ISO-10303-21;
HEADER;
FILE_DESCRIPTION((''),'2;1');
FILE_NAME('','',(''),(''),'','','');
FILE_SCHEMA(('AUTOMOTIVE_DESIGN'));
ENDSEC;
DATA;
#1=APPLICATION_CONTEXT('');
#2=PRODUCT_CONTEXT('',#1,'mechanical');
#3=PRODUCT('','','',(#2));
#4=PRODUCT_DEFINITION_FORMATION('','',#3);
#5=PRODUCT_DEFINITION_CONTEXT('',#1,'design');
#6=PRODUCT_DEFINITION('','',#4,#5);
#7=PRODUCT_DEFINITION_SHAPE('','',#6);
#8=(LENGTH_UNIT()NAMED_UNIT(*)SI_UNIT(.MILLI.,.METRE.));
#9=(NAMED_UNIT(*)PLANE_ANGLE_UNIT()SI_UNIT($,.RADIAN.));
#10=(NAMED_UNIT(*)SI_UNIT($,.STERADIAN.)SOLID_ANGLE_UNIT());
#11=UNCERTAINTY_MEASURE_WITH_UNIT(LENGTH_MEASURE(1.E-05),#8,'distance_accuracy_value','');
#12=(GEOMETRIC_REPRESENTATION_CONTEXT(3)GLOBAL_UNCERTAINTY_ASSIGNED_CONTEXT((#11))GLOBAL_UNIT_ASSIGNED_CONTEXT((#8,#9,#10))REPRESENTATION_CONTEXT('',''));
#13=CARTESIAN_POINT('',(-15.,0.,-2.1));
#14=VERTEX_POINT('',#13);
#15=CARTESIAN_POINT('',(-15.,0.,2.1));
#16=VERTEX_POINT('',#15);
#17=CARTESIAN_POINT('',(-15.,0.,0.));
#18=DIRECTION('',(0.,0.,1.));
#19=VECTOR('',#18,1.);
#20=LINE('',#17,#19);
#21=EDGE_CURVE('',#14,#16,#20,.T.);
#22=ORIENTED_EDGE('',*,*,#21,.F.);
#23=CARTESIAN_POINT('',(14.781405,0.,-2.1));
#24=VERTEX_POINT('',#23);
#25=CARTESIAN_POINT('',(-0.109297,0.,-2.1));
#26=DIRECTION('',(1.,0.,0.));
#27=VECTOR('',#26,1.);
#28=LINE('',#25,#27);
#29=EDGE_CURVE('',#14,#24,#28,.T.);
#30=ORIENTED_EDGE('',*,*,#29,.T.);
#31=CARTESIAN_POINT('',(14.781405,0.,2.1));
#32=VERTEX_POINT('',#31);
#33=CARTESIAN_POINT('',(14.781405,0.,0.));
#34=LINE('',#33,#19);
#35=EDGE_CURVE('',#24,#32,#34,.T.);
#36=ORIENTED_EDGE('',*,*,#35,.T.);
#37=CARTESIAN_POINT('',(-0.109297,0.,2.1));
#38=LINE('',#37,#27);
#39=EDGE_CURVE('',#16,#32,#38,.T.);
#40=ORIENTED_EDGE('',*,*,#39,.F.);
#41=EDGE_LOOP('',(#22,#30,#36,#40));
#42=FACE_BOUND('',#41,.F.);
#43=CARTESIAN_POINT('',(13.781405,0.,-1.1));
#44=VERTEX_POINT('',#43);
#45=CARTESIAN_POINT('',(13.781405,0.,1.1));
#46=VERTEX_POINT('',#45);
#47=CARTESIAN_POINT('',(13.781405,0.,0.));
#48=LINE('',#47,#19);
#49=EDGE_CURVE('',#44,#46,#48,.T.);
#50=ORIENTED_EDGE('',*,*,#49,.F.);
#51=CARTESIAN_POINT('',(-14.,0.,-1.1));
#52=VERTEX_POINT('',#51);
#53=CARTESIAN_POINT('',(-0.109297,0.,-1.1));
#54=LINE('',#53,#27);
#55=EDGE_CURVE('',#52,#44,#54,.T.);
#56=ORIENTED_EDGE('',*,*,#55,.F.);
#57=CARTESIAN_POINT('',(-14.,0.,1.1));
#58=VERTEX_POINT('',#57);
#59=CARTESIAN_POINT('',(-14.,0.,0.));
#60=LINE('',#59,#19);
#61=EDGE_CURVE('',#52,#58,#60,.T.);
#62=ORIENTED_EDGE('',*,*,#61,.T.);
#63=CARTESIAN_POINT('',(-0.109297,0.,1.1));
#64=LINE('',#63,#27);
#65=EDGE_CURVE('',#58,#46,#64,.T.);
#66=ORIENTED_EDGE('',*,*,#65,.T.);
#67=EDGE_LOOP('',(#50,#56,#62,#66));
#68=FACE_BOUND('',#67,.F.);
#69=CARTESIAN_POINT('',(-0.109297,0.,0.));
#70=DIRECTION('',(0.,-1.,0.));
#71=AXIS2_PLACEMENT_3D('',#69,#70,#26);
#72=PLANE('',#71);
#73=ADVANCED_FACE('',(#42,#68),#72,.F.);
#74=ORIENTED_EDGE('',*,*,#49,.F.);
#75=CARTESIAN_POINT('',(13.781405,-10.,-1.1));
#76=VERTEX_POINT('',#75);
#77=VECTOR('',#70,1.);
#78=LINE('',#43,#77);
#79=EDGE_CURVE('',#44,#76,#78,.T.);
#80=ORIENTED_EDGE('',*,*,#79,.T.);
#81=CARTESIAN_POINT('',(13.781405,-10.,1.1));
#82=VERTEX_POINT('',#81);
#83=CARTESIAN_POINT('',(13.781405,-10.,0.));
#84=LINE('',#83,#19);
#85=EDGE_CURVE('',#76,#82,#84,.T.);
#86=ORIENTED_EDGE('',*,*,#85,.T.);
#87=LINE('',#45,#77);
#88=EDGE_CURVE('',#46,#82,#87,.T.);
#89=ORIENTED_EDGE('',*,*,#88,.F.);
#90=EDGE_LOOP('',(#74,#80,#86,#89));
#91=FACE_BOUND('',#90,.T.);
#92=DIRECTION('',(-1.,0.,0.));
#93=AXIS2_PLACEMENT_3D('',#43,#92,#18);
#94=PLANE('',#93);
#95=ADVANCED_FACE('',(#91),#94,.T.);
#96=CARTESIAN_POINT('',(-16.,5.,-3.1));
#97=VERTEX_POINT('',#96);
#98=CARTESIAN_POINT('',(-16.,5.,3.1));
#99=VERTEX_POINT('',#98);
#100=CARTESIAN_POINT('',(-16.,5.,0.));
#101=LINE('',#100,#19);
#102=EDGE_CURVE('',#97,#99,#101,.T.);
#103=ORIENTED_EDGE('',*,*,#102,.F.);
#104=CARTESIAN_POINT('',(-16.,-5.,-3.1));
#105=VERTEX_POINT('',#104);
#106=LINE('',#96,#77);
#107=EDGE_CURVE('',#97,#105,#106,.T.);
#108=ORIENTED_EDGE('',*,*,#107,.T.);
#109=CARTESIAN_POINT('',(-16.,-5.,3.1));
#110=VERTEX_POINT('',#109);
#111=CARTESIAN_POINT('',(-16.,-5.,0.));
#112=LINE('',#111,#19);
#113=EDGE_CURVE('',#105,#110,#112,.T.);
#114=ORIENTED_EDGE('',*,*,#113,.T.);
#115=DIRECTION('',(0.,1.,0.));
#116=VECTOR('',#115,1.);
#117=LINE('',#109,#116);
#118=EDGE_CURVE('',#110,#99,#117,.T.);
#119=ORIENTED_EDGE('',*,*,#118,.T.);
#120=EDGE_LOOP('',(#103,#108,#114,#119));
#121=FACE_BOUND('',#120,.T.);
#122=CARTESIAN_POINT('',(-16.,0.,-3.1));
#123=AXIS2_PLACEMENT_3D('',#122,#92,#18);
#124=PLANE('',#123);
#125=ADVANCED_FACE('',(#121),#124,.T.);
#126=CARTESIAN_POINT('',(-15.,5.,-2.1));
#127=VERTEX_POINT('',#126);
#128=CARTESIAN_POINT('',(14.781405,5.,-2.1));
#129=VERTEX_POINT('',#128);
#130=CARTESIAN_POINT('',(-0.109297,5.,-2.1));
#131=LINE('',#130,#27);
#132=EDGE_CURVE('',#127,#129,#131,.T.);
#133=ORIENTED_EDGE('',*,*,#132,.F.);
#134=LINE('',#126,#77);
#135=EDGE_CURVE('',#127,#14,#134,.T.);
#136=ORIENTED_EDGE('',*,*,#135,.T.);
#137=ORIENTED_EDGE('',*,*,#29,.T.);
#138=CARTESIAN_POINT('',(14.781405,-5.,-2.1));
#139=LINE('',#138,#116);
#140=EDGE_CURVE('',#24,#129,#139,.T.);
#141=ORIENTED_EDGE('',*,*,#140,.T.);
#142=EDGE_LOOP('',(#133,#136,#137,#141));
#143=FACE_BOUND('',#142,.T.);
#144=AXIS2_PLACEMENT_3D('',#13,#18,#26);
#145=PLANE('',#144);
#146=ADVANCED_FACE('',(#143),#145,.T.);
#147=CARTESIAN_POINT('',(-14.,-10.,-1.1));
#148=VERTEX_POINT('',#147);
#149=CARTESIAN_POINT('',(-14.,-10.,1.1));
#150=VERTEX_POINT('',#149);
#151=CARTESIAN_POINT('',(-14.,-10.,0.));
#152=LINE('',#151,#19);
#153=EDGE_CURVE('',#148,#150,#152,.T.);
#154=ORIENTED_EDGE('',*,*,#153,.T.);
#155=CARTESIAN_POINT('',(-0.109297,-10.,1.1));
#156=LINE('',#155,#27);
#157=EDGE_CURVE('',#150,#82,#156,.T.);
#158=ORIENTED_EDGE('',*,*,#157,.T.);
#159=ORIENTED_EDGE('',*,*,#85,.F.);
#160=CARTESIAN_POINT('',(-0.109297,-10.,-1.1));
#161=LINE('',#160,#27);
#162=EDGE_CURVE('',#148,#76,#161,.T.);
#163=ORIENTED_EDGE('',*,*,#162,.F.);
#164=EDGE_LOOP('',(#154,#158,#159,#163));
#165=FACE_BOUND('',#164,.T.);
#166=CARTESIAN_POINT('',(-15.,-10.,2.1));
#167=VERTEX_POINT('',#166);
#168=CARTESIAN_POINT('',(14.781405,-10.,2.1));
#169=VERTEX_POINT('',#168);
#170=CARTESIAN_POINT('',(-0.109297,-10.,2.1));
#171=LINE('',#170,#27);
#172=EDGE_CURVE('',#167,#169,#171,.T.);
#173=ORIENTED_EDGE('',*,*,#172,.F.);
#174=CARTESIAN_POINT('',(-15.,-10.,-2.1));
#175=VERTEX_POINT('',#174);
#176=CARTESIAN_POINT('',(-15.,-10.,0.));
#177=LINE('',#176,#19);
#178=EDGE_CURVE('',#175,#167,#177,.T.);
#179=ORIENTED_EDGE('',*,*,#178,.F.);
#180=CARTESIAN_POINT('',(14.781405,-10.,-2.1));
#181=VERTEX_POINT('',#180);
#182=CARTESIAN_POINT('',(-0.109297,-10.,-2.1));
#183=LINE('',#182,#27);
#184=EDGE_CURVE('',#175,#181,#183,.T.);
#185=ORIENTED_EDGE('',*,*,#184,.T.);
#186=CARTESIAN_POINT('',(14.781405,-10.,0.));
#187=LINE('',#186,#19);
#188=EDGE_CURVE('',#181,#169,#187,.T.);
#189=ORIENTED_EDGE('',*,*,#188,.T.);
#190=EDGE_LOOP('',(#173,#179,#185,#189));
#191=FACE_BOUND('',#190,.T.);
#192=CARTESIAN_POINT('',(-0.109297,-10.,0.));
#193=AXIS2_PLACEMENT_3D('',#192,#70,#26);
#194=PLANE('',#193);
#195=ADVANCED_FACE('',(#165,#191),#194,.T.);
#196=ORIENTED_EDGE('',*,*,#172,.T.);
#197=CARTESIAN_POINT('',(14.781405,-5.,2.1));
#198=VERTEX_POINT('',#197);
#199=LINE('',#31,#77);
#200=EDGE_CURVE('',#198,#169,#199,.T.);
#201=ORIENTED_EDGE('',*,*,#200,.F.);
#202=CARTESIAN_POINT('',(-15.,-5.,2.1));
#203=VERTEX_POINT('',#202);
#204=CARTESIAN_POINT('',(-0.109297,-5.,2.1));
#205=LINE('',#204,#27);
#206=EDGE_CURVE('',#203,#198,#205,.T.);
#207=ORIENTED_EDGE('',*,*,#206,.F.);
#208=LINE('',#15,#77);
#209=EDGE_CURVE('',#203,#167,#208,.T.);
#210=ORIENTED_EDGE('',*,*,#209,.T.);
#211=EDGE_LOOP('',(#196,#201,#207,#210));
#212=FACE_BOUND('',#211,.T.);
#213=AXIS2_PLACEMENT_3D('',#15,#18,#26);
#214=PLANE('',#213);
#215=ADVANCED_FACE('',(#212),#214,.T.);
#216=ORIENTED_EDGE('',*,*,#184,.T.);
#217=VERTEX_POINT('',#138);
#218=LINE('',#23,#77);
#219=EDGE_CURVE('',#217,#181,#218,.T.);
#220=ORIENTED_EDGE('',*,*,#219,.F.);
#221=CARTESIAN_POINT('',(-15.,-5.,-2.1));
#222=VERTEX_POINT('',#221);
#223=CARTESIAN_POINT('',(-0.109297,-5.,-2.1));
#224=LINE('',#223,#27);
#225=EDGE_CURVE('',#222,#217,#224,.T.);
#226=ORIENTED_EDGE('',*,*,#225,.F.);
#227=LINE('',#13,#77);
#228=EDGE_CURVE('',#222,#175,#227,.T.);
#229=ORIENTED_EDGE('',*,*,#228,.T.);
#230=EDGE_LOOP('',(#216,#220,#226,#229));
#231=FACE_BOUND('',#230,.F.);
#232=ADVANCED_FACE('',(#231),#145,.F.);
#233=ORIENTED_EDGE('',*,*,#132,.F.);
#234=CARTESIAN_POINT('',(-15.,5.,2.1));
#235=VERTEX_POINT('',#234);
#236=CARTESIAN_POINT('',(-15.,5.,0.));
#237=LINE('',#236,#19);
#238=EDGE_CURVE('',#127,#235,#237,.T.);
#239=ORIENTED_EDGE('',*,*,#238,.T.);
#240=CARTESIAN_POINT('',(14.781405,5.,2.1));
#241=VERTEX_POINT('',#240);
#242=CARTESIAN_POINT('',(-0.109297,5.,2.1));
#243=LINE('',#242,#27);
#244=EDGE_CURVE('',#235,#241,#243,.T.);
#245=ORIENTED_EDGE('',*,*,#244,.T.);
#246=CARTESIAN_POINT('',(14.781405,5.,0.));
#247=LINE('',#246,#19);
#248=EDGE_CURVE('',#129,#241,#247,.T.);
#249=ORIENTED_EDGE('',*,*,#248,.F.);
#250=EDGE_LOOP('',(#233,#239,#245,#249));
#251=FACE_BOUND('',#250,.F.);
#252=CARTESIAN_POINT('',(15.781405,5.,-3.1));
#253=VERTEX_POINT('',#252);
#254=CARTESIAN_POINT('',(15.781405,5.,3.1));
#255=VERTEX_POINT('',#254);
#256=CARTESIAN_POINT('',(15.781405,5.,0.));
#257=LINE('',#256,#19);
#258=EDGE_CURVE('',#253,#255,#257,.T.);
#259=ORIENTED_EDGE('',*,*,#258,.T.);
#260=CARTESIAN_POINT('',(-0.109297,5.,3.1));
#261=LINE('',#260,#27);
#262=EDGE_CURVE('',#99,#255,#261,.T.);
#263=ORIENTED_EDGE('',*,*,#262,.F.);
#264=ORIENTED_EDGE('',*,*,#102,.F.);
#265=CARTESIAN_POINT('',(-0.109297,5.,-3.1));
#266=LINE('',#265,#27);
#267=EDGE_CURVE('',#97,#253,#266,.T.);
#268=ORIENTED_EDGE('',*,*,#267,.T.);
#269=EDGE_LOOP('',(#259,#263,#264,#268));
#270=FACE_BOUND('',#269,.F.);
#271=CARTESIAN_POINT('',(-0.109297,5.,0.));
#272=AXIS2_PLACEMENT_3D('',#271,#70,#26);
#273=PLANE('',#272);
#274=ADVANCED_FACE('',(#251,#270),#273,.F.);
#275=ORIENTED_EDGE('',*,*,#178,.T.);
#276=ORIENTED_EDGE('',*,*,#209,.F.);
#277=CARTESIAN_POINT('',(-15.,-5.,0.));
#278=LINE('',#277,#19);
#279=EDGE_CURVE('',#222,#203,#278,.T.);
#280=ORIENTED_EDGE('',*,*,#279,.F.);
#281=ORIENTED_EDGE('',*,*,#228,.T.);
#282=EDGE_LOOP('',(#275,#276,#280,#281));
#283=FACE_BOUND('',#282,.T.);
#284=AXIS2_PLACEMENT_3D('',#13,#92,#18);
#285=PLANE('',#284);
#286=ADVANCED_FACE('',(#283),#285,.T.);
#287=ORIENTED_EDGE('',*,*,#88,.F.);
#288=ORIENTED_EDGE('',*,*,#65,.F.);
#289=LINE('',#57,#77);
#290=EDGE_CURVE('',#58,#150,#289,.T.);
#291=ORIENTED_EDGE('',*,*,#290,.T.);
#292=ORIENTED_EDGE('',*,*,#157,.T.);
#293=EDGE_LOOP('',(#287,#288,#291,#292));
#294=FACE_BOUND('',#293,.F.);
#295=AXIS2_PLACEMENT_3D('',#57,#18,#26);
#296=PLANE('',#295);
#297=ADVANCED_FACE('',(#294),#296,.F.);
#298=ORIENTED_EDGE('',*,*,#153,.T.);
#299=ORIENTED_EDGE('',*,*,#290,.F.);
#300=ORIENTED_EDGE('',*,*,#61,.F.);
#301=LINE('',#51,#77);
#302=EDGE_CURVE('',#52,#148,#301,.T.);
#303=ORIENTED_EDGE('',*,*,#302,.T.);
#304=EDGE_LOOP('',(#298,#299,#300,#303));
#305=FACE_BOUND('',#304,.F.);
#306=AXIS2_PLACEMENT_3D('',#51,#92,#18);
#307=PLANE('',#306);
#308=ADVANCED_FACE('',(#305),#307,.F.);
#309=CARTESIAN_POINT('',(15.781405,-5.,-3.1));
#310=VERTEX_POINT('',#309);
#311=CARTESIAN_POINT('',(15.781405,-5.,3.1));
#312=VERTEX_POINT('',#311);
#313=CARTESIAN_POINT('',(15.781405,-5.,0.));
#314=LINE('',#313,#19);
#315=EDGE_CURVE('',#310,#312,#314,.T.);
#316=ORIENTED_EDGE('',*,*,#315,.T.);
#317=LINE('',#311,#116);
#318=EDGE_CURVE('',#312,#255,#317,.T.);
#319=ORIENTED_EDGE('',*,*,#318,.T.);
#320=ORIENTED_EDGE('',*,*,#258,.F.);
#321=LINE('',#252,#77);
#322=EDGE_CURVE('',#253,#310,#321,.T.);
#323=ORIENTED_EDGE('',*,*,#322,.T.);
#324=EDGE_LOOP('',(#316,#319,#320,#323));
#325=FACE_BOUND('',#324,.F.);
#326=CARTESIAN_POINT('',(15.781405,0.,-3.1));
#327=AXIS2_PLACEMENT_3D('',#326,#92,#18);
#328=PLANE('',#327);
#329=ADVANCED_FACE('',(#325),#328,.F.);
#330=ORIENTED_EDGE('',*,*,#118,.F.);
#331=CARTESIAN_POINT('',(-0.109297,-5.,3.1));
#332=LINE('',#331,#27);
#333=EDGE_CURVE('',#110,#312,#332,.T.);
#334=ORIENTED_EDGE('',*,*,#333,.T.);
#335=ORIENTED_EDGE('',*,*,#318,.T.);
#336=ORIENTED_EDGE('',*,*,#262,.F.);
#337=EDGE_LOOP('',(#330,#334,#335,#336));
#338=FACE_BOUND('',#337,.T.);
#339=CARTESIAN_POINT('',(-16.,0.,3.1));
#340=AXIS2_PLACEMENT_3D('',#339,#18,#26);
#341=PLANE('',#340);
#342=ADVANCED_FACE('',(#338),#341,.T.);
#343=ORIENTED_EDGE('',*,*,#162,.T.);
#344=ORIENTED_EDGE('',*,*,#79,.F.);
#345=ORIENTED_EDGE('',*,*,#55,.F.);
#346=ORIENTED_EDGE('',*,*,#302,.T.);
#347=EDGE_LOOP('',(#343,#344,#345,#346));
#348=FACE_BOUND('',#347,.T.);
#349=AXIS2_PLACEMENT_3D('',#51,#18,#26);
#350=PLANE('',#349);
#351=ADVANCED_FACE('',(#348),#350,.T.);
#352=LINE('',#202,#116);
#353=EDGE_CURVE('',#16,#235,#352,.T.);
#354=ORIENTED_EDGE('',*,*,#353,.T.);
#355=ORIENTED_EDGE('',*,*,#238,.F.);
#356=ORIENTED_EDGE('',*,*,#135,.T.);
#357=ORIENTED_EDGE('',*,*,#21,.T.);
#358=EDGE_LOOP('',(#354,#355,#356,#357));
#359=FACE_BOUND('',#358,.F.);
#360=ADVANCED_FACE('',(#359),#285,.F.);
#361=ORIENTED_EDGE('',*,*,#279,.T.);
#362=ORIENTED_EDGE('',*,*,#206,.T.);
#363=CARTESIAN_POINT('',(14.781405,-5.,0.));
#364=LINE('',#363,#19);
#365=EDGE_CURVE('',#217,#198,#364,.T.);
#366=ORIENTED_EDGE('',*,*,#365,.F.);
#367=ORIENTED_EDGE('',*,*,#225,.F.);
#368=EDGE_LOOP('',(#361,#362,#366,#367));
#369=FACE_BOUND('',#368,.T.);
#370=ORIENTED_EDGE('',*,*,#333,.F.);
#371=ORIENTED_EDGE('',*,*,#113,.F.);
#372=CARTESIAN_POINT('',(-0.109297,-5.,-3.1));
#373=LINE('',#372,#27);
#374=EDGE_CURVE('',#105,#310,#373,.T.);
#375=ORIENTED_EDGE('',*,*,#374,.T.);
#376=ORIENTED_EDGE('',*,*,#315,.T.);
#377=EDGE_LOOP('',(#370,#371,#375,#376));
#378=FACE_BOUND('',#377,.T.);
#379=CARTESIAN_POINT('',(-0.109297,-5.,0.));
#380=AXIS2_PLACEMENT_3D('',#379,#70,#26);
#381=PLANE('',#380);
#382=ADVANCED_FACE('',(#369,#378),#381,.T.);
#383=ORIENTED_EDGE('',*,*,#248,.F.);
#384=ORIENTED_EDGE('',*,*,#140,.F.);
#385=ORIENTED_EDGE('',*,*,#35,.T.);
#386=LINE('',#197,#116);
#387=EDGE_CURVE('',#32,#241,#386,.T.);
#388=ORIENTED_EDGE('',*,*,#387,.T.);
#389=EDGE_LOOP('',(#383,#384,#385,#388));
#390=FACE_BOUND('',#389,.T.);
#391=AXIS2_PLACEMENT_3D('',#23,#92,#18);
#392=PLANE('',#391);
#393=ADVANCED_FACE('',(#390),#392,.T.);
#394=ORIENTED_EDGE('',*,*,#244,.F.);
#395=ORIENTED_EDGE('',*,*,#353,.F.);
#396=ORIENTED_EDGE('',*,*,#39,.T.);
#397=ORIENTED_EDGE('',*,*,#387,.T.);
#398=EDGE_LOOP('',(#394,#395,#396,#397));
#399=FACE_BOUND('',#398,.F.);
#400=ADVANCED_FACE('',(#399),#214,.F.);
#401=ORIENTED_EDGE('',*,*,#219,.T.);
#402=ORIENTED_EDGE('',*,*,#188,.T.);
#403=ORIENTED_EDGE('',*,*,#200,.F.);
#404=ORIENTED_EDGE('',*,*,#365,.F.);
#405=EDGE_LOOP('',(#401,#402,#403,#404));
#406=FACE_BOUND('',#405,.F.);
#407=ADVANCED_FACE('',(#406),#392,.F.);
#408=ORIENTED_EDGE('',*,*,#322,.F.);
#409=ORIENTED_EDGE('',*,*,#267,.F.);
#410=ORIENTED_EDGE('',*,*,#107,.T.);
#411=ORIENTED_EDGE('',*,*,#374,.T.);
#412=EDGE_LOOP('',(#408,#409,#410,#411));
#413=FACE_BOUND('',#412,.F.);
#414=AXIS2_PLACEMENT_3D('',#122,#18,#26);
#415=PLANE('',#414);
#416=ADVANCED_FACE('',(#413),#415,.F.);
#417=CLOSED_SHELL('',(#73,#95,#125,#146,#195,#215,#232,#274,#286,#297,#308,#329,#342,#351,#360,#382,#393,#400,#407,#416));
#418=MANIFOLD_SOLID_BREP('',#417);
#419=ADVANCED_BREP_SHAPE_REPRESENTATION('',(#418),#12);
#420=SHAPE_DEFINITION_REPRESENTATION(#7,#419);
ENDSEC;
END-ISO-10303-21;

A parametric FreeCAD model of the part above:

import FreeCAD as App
import Part
import Sketcher

V = App.Vector
Q = App.Units.Quantity

doc = App.newDocument("Part")
body = doc.addObject("PartDesign::Body", "Body")

# Sketch on XZ plane
sketch1 = doc.addObject("Sketcher::SketchObject", "Sketch")
body.addObject(sketch1)
sketch1.AttachmentSupport = (doc.XZ_Plane, [""])
sketch1.MapMode = "FlatFace"
sketch1.addGeometry(Part.LineSegment(V(-16, 3.1, 0), V(-16, -3.1, 0)), False)
sketch1.addGeometry(Part.LineSegment(V(-16, -3.1, 0), V(15.8, -3.1, 0)), False)
sketch1.addGeometry(Part.LineSegment(V(15.8, -3.1, 0), V(15.8, 3.1, 0)), False)
sketch1.addGeometry(Part.LineSegment(V(15.8, 3.1, 0), V(-16, 3.1, 0)), False)
sketch1.addGeometry(Part.LineSegment(V(14.8, -2.1, 0), V(-15, -2.1, 0)), False)
sketch1.addGeometry(Part.LineSegment(V(-15, -2.1, 0), V(-15, 2.1, 0)), False)
sketch1.addGeometry(Part.LineSegment(V(-15, 2.1, 0), V(14.8, 2.1, 0)), False)
sketch1.addGeometry(Part.LineSegment(V(14.8, 2.1, 0), V(14.8, -2.1, 0)), False)
sketch1.addConstraint(Sketcher.Constraint("Coincident", 0, 2, 1, 1))
sketch1.addConstraint(Sketcher.Constraint("Coincident", 1, 2, 2, 1))
sketch1.addConstraint(Sketcher.Constraint("Coincident", 2, 2, 3, 1))
sketch1.addConstraint(Sketcher.Constraint("Coincident", 3, 2, 0, 1))
sketch1.addConstraint(Sketcher.Constraint("Coincident", 4, 2, 5, 1))
sketch1.addConstraint(Sketcher.Constraint("Coincident", 5, 2, 6, 1))
sketch1.addConstraint(Sketcher.Constraint("Coincident", 6, 2, 7, 1))
sketch1.addConstraint(Sketcher.Constraint("Coincident", 7, 2, 4, 1))
sketch1.addConstraint(Sketcher.Constraint("Vertical", 0))
sketch1.addConstraint(Sketcher.Constraint("Horizontal", 1))
sketch1.addConstraint(Sketcher.Constraint("Vertical", 2))
sketch1.addConstraint(Sketcher.Constraint("Horizontal", 3))
sketch1.addConstraint(Sketcher.Constraint("Horizontal", 4))
sketch1.addConstraint(Sketcher.Constraint("Vertical", 5))
sketch1.addConstraint(Sketcher.Constraint("Horizontal", 6))
sketch1.addConstraint(Sketcher.Constraint("Vertical", 7))
sketch1.addConstraint(Sketcher.Constraint("DistanceY", 0, 2, 0, 1, Q("6.2 mm")))
sketch1.addConstraint(Sketcher.Constraint("DistanceY", 5, 1, 5, 2, Q("4.2 mm")))
sketch1.addConstraint(Sketcher.Constraint("DistanceX", 0, 2, -1, 1, Q("16 mm")))
sketch1.addConstraint(Sketcher.Constraint("DistanceX", 4, 2, -1, 1, Q("15 mm")))
sketch1.addConstraint(Sketcher.Constraint("DistanceY", 0, 2, 4, 2, Q("1 mm")))
sketch1.addConstraint(Sketcher.Constraint("DistanceX", 6, 2, 2, 2, Q("1 mm")))
sketch1.addConstraint(Sketcher.Constraint("DistanceY", 0, 2, -1, 1, Q("3.1 mm")))
sketch1.addConstraint(Sketcher.Constraint("DistanceX", 1, 1, 1, 2, Q("31.781405 mm")))
pad1 = doc.addObject("PartDesign::Pad", "Pad")
body.addObject(pad1)
pad1.Profile = sketch1
pad1.Type = "TwoLengths"
pad1.Length = 5
pad1.Length2 = 5
pad1.Reversed = True

# Sketch on XZ plane
sketch2 = doc.addObject("Sketcher::SketchObject", "Sketch001")
body.addObject(sketch2)
sketch2.AttachmentSupport = (doc.XZ_Plane, [""])
sketch2.MapMode = "FlatFace"
sketch2.addGeometry(Part.LineSegment(V(-15, 2.1, 0), V(-15, -2.1, 0)), False)
sketch2.addGeometry(Part.LineSegment(V(-15, -2.1, 0), V(14.8, -2.1, 0)), False)
sketch2.addGeometry(Part.LineSegment(V(14.8, -2.1, 0), V(14.8, 2.1, 0)), False)
sketch2.addGeometry(Part.LineSegment(V(14.8, 2.1, 0), V(-15, 2.1, 0)), False)
sketch2.addGeometry(Part.LineSegment(V(13.8, -1.1, 0), V(-14, -1.1, 0)), False)
sketch2.addGeometry(Part.LineSegment(V(-14, -1.1, 0), V(-14, 1.1, 0)), False)
sketch2.addGeometry(Part.LineSegment(V(-14, 1.1, 0), V(13.8, 1.1, 0)), False)
sketch2.addGeometry(Part.LineSegment(V(13.8, 1.1, 0), V(13.8, -1.1, 0)), False)
sketch2.addConstraint(Sketcher.Constraint("Coincident", 0, 2, 1, 1))
sketch2.addConstraint(Sketcher.Constraint("Coincident", 1, 2, 2, 1))
sketch2.addConstraint(Sketcher.Constraint("Coincident", 2, 2, 3, 1))
sketch2.addConstraint(Sketcher.Constraint("Coincident", 3, 2, 0, 1))
sketch2.addConstraint(Sketcher.Constraint("Coincident", 4, 2, 5, 1))
sketch2.addConstraint(Sketcher.Constraint("Coincident", 5, 2, 6, 1))
sketch2.addConstraint(Sketcher.Constraint("Coincident", 6, 2, 7, 1))
sketch2.addConstraint(Sketcher.Constraint("Coincident", 7, 2, 4, 1))
sketch2.addConstraint(Sketcher.Constraint("Vertical", 0))
sketch2.addConstraint(Sketcher.Constraint("Horizontal", 1))
sketch2.addConstraint(Sketcher.Constraint("Vertical", 2))
sketch2.addConstraint(Sketcher.Constraint("Horizontal", 3))
sketch2.addConstraint(Sketcher.Constraint("Horizontal", 4))
sketch2.addConstraint(Sketcher.Constraint("Vertical", 5))
sketch2.addConstraint(Sketcher.Constraint("Horizontal", 6))
sketch2.addConstraint(Sketcher.Constraint("Vertical", 7))
sketch2.addConstraint(Sketcher.Constraint("DistanceY", 0, 2, 0, 1, Q("4.2 mm")))
sketch2.addConstraint(Sketcher.Constraint("DistanceY", 5, 1, 5, 2, Q("2.2 mm")))
sketch2.addConstraint(Sketcher.Constraint("DistanceX", 0, 2, -1, 1, Q("15 mm")))
sketch2.addConstraint(Sketcher.Constraint("DistanceX", 4, 2, -1, 1, Q("14 mm")))
sketch2.addConstraint(Sketcher.Constraint("DistanceY", 0, 2, 4, 2, Q("1 mm")))
sketch2.addConstraint(Sketcher.Constraint("DistanceX", 6, 2, 2, 2, Q("1 mm")))
sketch2.addConstraint(Sketcher.Constraint("DistanceY", 0, 2, -1, 1, Q("2.1 mm")))
sketch2.addConstraint(Sketcher.Constraint("DistanceX", 1, 1, 1, 2, Q("29.781405 mm")))
pad2 = doc.addObject("PartDesign::Pad", "Pad001")
body.addObject(pad2)
pad2.Profile = sketch2
pad2.Length = 10

doc.recompute()
